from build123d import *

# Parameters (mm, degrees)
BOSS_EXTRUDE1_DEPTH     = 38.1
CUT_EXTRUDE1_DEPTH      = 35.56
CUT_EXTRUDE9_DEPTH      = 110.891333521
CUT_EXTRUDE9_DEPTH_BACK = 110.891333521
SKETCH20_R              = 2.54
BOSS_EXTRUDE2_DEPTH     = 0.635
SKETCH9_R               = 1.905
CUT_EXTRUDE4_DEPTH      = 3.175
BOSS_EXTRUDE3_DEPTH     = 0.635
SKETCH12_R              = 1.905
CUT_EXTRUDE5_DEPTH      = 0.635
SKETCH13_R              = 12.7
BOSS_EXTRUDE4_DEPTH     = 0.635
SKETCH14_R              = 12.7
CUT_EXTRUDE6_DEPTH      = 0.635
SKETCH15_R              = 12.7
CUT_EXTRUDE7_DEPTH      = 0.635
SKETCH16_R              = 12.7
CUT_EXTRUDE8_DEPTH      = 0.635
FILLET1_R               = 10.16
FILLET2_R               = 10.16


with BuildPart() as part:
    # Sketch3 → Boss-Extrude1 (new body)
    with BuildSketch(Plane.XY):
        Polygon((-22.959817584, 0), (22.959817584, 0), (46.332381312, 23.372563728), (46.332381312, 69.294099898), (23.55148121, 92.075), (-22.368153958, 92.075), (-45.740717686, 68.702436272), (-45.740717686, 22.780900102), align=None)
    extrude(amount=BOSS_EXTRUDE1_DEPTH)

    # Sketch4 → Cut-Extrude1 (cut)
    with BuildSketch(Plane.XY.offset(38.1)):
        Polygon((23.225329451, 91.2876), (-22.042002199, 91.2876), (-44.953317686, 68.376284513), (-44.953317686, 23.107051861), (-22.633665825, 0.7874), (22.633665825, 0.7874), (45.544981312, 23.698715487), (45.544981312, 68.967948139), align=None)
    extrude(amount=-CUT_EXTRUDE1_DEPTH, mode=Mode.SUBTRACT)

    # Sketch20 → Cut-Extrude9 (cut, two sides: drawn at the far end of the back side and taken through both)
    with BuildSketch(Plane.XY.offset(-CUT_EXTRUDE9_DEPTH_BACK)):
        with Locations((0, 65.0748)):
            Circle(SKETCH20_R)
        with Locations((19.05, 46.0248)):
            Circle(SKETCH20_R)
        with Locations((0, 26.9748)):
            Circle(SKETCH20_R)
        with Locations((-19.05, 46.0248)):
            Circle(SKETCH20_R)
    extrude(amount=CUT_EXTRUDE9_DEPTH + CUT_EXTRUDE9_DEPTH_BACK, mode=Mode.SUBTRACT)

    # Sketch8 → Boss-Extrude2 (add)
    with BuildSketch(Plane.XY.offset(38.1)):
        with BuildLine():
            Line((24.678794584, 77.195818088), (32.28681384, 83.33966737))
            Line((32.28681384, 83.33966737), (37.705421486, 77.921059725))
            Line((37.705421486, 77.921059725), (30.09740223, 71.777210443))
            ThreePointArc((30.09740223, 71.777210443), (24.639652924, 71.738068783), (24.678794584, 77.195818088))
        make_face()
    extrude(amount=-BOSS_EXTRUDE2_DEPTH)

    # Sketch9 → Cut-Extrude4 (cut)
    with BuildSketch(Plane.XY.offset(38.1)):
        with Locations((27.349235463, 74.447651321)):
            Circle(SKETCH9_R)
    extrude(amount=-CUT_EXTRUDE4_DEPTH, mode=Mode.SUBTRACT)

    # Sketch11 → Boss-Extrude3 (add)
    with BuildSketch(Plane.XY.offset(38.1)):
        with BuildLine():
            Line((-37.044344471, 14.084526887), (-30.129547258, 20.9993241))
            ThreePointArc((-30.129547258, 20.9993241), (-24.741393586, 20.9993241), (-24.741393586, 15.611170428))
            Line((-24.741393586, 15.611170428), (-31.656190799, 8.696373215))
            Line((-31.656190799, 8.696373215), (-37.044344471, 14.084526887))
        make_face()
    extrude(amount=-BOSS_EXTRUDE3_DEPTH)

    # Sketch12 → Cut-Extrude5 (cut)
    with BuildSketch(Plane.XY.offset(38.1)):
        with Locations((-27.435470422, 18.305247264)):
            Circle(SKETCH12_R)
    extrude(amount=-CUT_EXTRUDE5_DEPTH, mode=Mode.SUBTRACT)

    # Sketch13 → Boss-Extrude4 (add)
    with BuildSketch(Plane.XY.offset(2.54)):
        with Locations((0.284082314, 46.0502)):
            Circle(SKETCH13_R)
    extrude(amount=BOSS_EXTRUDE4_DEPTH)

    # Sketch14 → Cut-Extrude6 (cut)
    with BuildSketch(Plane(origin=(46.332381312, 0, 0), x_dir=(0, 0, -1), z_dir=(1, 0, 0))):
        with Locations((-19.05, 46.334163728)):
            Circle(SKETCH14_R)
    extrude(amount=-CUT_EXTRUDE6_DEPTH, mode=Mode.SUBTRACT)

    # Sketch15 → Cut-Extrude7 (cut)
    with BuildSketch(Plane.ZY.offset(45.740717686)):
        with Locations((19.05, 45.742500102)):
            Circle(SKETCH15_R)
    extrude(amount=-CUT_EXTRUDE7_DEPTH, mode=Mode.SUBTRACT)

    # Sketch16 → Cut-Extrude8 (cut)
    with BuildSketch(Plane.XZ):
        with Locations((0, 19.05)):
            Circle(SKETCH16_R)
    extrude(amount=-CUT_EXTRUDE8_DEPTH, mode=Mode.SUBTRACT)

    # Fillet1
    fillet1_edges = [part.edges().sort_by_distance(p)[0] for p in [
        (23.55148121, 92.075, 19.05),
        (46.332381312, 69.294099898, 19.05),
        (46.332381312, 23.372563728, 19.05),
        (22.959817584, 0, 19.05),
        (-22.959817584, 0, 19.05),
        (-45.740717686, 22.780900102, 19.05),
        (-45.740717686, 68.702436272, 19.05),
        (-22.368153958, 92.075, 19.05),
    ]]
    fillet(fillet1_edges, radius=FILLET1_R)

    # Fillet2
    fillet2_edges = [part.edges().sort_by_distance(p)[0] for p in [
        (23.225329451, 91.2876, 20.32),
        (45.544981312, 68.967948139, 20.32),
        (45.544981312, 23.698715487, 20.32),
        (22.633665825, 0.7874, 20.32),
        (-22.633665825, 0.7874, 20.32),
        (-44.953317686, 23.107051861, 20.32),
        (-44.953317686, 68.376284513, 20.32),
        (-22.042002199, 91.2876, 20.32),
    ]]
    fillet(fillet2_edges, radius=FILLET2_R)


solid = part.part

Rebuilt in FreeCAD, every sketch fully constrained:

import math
import FreeCAD as App
import Part
import Sketcher
Q = App.Units.Quantity


def edges_at(feature, points):
    """Names of the edges that pass closest to the given points."""
    edges = feature.Shape.Edges
    near = lambda p: min(range(len(edges)), key=lambda i: edges[i].distToShape(Part.Vertex(*p))[0])
    return sorted({f"Edge{near(p) + 1}" for p in points})

doc = App.newDocument("Part")
body = doc.addObject("PartDesign::Body", "Body")

sketch1 = body.newObject("Sketcher::SketchObject", "Sketch")
sketch1.AttachmentSupport = (doc.getObject("XY_Plane"), [""])
sketch1.MapMode = "FlatFace"
sketch1.addGeometry(Part.LineSegment(App.Vector(-22.959818, 0, 0), App.Vector(22.959818, 0, 0)), False)
sketch1.addGeometry(Part.LineSegment(App.Vector(22.959818, 0, 0), App.Vector(46.332381, 23.372564, 0)), False)
sketch1.addGeometry(Part.LineSegment(App.Vector(46.332381, 23.372564, 0), App.Vector(46.332381, 69.2941, 0)), False)
sketch1.addGeometry(Part.LineSegment(App.Vector(46.332381, 69.2941, 0), App.Vector(23.551481, 92.075, 0)), False)
sketch1.addGeometry(Part.LineSegment(App.Vector(23.551481, 92.075, 0), App.Vector(-22.368154, 92.075, 0)), False)
sketch1.addGeometry(Part.LineSegment(App.Vector(-22.368154, 92.075, 0), App.Vector(-45.740718, 68.702436, 0)), False)
sketch1.addGeometry(Part.LineSegment(App.Vector(-45.740718, 68.702436, 0), App.Vector(-45.740718, 22.7809, 0)), False)
sketch1.addGeometry(Part.LineSegment(App.Vector(-45.740718, 22.7809, 0), App.Vector(-22.959818, 0, 0)), False)
sketch1.addConstraint(Sketcher.Constraint("Coincident", 0, 2, 1, 1))
sketch1.addConstraint(Sketcher.Constraint("Coincident", 1, 2, 2, 1))
sketch1.addConstraint(Sketcher.Constraint("Coincident", 2, 2, 3, 1))
sketch1.addConstraint(Sketcher.Constraint("Coincident", 3, 2, 4, 1))
sketch1.addConstraint(Sketcher.Constraint("Coincident", 4, 2, 5, 1))
sketch1.addConstraint(Sketcher.Constraint("Coincident", 5, 2, 6, 1))
sketch1.addConstraint(Sketcher.Constraint("Coincident", 6, 2, 7, 1))
sketch1.addConstraint(Sketcher.Constraint("Coincident", 7, 2, 0, 1))
sketch1.addConstraint(Sketcher.Constraint("Horizontal", 0))
sketch1.addConstraint(Sketcher.Constraint("Vertical", 2))
sketch1.addConstraint(Sketcher.Constraint("Horizontal", 4))
sketch1.addConstraint(Sketcher.Constraint("Vertical", 6))
sketch1.addConstraint(Sketcher.Constraint("Symmetric", 0, 2, 7, 2, -1, 1))
sketch1.addConstraint(Sketcher.Constraint("Perpendicular", 1, 3))
sketch1.addConstraint(Sketcher.Constraint("Perpendicular", 3, 5))
sketch1.addConstraint(Sketcher.Constraint("Perpendicular", 5, 7))
sketch1.addConstraint(Sketcher.Constraint("Equal", 0, 4))
sketch1.addConstraint(Sketcher.Constraint("Equal", 2, 6))
sketch1.addConstraint(Sketcher.Constraint("Angle", 1, Q("45 deg")))
sketch1.addConstraint(Sketcher.Constraint("DistanceY", -1, 1, 3, 2, Q("3.625 in")))
sketch1.addConstraint(Sketcher.Constraint("DistanceY", -1, 1, 2, 2, 69.2941))
sketch1.addConstraint(Sketcher.Constraint("DistanceX", 5, 2, 3, 2, 69.292199))
sketch1.addConstraint(Sketcher.Constraint("DistanceX", 0, 1, 0, 2, 45.919635))
pad1 = body.newObject("PartDesign::Pad", "Pad")
pad1.Profile = sketch1
pad1.Length = Q("1.5 in")

sketch2 = body.newObject("Sketcher::SketchObject", "Sketch001")
sketch2.AttachmentSupport = (doc.getObject("XY_Plane"), [""])
sketch2.MapMode = "FlatFace"
sketch2.AttachmentOffset = App.Placement(App.Vector(0, 0, 1.5 * 25.4), App.Rotation())
sketch2.addGeometry(Part.LineSegment(App.Vector(23.225329, 91.2876, 0), App.Vector(-22.042002, 91.2876, 0)), False)
sketch2.addGeometry(Part.LineSegment(App.Vector(-22.042002, 91.2876, 0), App.Vector(-44.953318, 68.376285, 0)), False)
sketch2.addGeometry(Part.LineSegment(App.Vector(-44.953318, 68.376285, 0), App.Vector(-44.953318, 23.107052, 0)), False)
sketch2.addGeometry(Part.LineSegment(App.Vector(-44.953318, 23.107052, 0), App.Vector(-22.633666, 0.7874, 0)), False)
sketch2.addGeometry(Part.LineSegment(App.Vector(-22.633666, 0.7874, 0), App.Vector(22.633666, 0.7874, 0)), False)
sketch2.addGeometry(Part.LineSegment(App.Vector(22.633666, 0.7874, 0), App.Vector(45.544981, 23.698715, 0)), False)
sketch2.addGeometry(Part.LineSegment(App.Vector(45.544981, 23.698715, 0), App.Vector(45.544981, 68.967948, 0)), False)
sketch2.addGeometry(Part.LineSegment(App.Vector(45.544981, 68.967948, 0), App.Vector(23.225329, 91.2876, 0)), False)
sketch2.addConstraint(Sketcher.Constraint("Coincident", 0, 2, 1, 1))
sketch2.addConstraint(Sketcher.Constraint("Coincident", 1, 2, 2, 1))
sketch2.addConstraint(Sketcher.Constraint("Coincident", 2, 2, 3, 1))
sketch2.addConstraint(Sketcher.Constraint("Coincident", 3, 2, 4, 1))
sketch2.addConstraint(Sketcher.Constraint("Coincident", 4, 2, 5, 1))
sketch2.addConstraint(Sketcher.Constraint("Coincident", 5, 2, 6, 1))
sketch2.addConstraint(Sketcher.Constraint("Coincident", 6, 2, 7, 1))
sketch2.addConstraint(Sketcher.Constraint("Coincident", 7, 2, 0, 1))
sketch2.addConstraint(Sketcher.Constraint("Horizontal", 0))
sketch2.addConstraint(Sketcher.Constraint("Vertical", 2))
sketch2.addConstraint(Sketcher.Constraint("Horizontal", 4))
sketch2.addConstraint(Sketcher.Constraint("Vertical", 6))
sketch2.addConstraint(Sketcher.Constraint("Perpendicular", 1, 3))
sketch2.addConstraint(Sketcher.Constraint("Perpendicular", 3, 5))
sketch2.addConstraint(Sketcher.Constraint("Perpendicular", 5, 7))
sketch2.addConstraint(Sketcher.Constraint("Equal", 0, 4))
sketch2.addConstraint(Sketcher.Constraint("Equal", 2, 6))
sketch2.addConstraint(Sketcher.Constraint("Angle", 1, Q("-135 deg")))
sketch2.addConstraint(Sketcher.Constraint("DistanceY", -1, 1, 0, 2, Q("3.594 in")))
sketch2.addConstraint(Sketcher.Constraint("DistanceY", -1, 1, 3, 2, Q("0.031 in")))
sketch2.addConstraint(Sketcher.Constraint("DistanceX", 0, 2, 0, 1, 45.267332))
sketch2.addConstraint(Sketcher.Constraint("DistanceX", 2, 2, 5, 2, 90.498299))
sketch2.addConstraint(Sketcher.Constraint("DistanceY", -1, 1, 2, 2, 23.107052))
sketch2.addConstraint(Sketcher.Constraint("DistanceX", -1, 1, 5, 2, 45.544981))
pocket1 = body.newObject("PartDesign::Pocket", "Pocket")
pocket1.Profile = sketch2
pocket1.Length = Q("1.4 in")

sketch3 = body.newObject("Sketcher::SketchObject", "Sketch002")
sketch3.AttachmentSupport = (doc.getObject("XY_Plane"), [""])
sketch3.MapMode = "FlatFace"
sketch3.addGeometry(Part.Circle(App.Vector(0, 65.0748, 0), App.Vector(0, 0, 1), 2.54), False)
sketch3.addGeometry(Part.Circle(App.Vector(19.05, 46.0248, 0), App.Vector(0, 0, 1), 2.54), False)
sketch3.addGeometry(Part.Circle(App.Vector(0, 26.9748, 0), App.Vector(0, 0, 1), 2.54), False)
sketch3.addGeometry(Part.Circle(App.Vector(-19.05, 46.0248, 0), App.Vector(0, 0, 1), 2.54), False)
sketch3.addConstraint(Sketcher.Constraint("Equal", 0, 1))
sketch3.addConstraint(Sketcher.Constraint("Equal", 1, 2))
sketch3.addConstraint(Sketcher.Constraint("Equal", 2, 3))
sketch3.addConstraint(Sketcher.Constraint("Symmetric", 1, 3, 3, 3, -2))
sketch3.addConstraint(Sketcher.Constraint("PointOnObject", 0, 3, -2))
sketch3.addConstraint(Sketcher.Constraint("PointOnObject", 2, 3, -2))
sketch3.addConstraint(Sketcher.Constraint("Diameter", 0, Q("0.2 in")))
sketch3.addConstraint(Sketcher.Constraint("DistanceY", 2, 3, 0, 3, Q("1.5 in")))
sketch3.addConstraint(Sketcher.Constraint("DistanceX", 3, 3, 1, 3, Q("1.5 in")))
sketch3.addConstraint(Sketcher.Constraint("DistanceY", 1, 3, 0, 3, Q("0.75 in")))
sketch3.addConstraint(Sketcher.Constraint("DistanceY", -1, 1, 0, 3, Q("2.562 in")))
pocket2 = body.newObject("PartDesign::Pocket", "Pocket001")
pocket2.Profile = sketch3
pocket2.Type = "ThroughAll"
pocket2.Midplane = True

sketch4 = body.newObject("Sketcher::SketchObject", "Sketch003")
sketch4.AttachmentSupport = (doc.getObject("XY_Plane"), [""])
sketch4.MapMode = "FlatFace"
sketch4.AttachmentOffset = App.Placement(App.Vector(0, 0, 1.5 * 25.4), App.Rotation())
sketch4.addGeometry(Part.LineSegment(App.Vector(32.286814, 83.339667, 0), App.Vector(24.678795, 77.195818, 0)), False)
sketch4.addGeometry(Part.ArcOfCircle(Part.Circle(App.Vector(27.349235, 74.447651, 0), App.Vector(0, 0, 1), 3.831928), math.radians(134.178191), math.radians(315.821809)), False)
sketch4.addGeometry(Part.LineSegment(App.Vector(30.097402, 71.77721, 0), App.Vector(37.705421, 77.92106, 0)), False)
sketch4.addGeometry(Part.LineSegment(App.Vector(37.705421, 77.92106, 0), App.Vector(32.286814, 83.339667, 0)), False)
sketch4.addConstraint(Sketcher.Constraint("Coincident", 0, 2, 1, 1))
sketch4.addConstraint(Sketcher.Constraint("Coincident", 1, 2, 2, 1))
sketch4.addConstraint(Sketcher.Constraint("Coincident", 2, 2, 3, 1))
sketch4.addConstraint(Sketcher.Constraint("Coincident", 3, 2, 0, 1))
sketch4.addConstraint(Sketcher.Constraint("Parallel", 0, 2))
sketch4.addConstraint(Sketcher.Constraint("Equal", 0, 2))
sketch4.addConstraint(Sketcher.Constraint("Angle", 3, Q("135 deg")))
sketch4.addConstraint(Sketcher.Constraint("Distance", 0, Q("0.385 in")))
sketch4.addConstraint(Sketcher.Constraint("Radius", 1, 3.831928))
sketch4.addConstraint(Sketcher.Constraint("Distance", 3, 7.663068))
sketch4.addConstraint(Sketcher.Constraint("DistanceY", -1, 1, 1, 3, 74.447651))
sketch4.addConstraint(Sketcher.Constraint("DistanceX", -1, 1, 2, 2, 37.705421))
sketch4.addConstraint(Sketcher.Constraint("DistanceY", -1, 1, 2, 2, 77.92106))
pad2 = body.newObject("PartDesign::Pad", "Pad001")
pad2.Profile = sketch4
pad2.Length = Q("0.025 in")
pad2.Reversed = True

sketch5 = body.newObject("Sketcher::SketchObject", "Sketch004")
sketch5.AttachmentSupport = (doc.getObject("XY_Plane"), [""])
sketch5.MapMode = "FlatFace"
sketch5.AttachmentOffset = App.Placement(App.Vector(0, 0, 1.5 * 25.4), App.Rotation())
sketch5.addGeometry(Part.Circle(App.Vector(27.349235, 74.447651, 0), App.Vector(0, 0, 1), 1.905), False)
sketch5.addConstraint(Sketcher.Constraint("Diameter", 0, Q("0.15 in")))
sketch5.addConstraint(Sketcher.Constraint("DistanceY", -1, 1, 0, 3, 74.447651))
sketch5.addConstraint(Sketcher.Constraint("DistanceX", -1, 1, 0, 3, 27.349235))
pocket3 = body.newObject("PartDesign::Pocket", "Pocket002")
pocket3.Profile = sketch5
pocket3.Length = Q("0.125 in")

sketch6 = body.newObject("Sketcher::SketchObject", "Sketch005")
sketch6.AttachmentSupport = (doc.getObject("XY_Plane"), [""])
sketch6.MapMode = "FlatFace"
sketch6.AttachmentOffset = App.Placement(App.Vector(0, 0, 1.5 * 25.4), App.Rotation())
sketch6.addGeometry(Part.LineSegment(App.Vector(-30.129547, 20.999324, 0), App.Vector(-37.044344, 14.084527, 0)), False)
sketch6.addGeometry(Part.LineSegment(App.Vector(-37.044344, 14.084527, 0), App.Vector(-31.656191, 8.696373, 0)), False)
sketch6.addGeometry(Part.LineSegment(App.Vector(-31.656191, 8.696373, 0), App.Vector(-24.741394, 15.61117, 0)), False)
sketch6.addGeometry(Part.ArcOfCircle(Part.Circle(App.Vector(-27.43547, 18.305247, 0), App.Vector(0, 0, 1), 3.81), math.radians(-45), math.radians(135)), False)
sketch6.addConstraint(Sketcher.Constraint("Coincident", 0, 2, 1, 1))
sketch6.addConstraint(Sketcher.Constraint("Coincident", 1, 2, 2, 1))
sketch6.addConstraint(Sketcher.Constraint("Tangent", 2, 2, 3, 1))
sketch6.addConstraint(Sketcher.Constraint("Tangent", 3, 2, 0, 1))
sketch6.addConstraint(Sketcher.Constraint("Perpendicular", 0, 1))
sketch6.addConstraint(Sketcher.Constraint("Perpendicular", 1, 2))
sketch6.addConstraint(Sketcher.Constraint("Radius", 3, Q("0.15 in")))
sketch6.addConstraint(Sketcher.Constraint("Angle", 0, Q("-135 deg")))
sketch6.addConstraint(Sketcher.Constraint("Distance", 0, Q("0.385 in")))
sketch6.addConstraint(Sketcher.Constraint("DistanceX", 3, 3, -1, 1, 27.43547))
sketch6.addConstraint(Sketcher.Constraint("DistanceY", -1, 1, 2, 2, 15.61117))
pad3 = body.newObject("PartDesign::Pad", "Pad002")
pad3.Profile = sketch6
pad3.Length = Q("0.025 in")
pad3.Reversed = True

sketch7 = body.newObject("Sketcher::SketchObject", "Sketch006")
sketch7.AttachmentSupport = (doc.getObject("XY_Plane"), [""])
sketch7.MapMode = "FlatFace"
sketch7.AttachmentOffset = App.Placement(App.Vector(0, 0, 1.5 * 25.4), App.Rotation())
sketch7.addGeometry(Part.Circle(App.Vector(-27.43547, 18.305247, 0), App.Vector(0, 0, 1), 1.905), False)
sketch7.addConstraint(Sketcher.Constraint("Diameter", 0, Q("0.15 in")))
sketch7.addConstraint(Sketcher.Constraint("DistanceX", 0, 3, -1, 1, 27.43547))
sketch7.addConstraint(Sketcher.Constraint("DistanceY", -1, 1, 0, 3, 18.305247))
pocket4 = body.newObject("PartDesign::Pocket", "Pocket003")
pocket4.Profile = sketch7
pocket4.Length = Q("0.025 in")

sketch8 = body.newObject("Sketcher::SketchObject", "Sketch007")
sketch8.AttachmentSupport = (doc.getObject("XY_Plane"), [""])
sketch8.MapMode = "FlatFace"
sketch8.AttachmentOffset = App.Placement(App.Vector(0, 0, 0.1 * 25.4), App.Rotation())
sketch8.addGeometry(Part.Circle(App.Vector(0.284082, 46.0502, 0), App.Vector(0, 0, 1), 12.7), False)
sketch8.addConstraint(Sketcher.Constraint("Diameter", 0, Q("1 in")))
sketch8.addConstraint(Sketcher.Constraint("DistanceY", -1, 1, 0, 3, Q("1.813 in")))
sketch8.addConstraint(Sketcher.Constraint("DistanceX", -1, 1, 0, 3, 0.284082))
pad4 = body.newObject("PartDesign::Pad", "Pad003")
pad4.Profile = sketch8
pad4.Length = Q("0.025 in")

sketch9 = body.newObject("Sketcher::SketchObject", "Sketch008")
sketch9.AttachmentSupport = (doc.getObject("YZ_Plane"), [""])
sketch9.MapMode = "FlatFace"
sketch9.AttachmentOffset = App.Placement(App.Vector(0, 0, 46.332381), App.Rotation())
sketch9.addGeometry(Part.Circle(App.Vector(46.334164, 19.05, 0), App.Vector(0, 0, 1), 12.7), False)
sketch9.addConstraint(Sketcher.Constraint("Diameter", 0, Q("1 in")))
sketch9.addConstraint(Sketcher.Constraint("DistanceY", -1, 1, 0, 3, Q("0.75 in")))
sketch9.addConstraint(Sketcher.Constraint("DistanceX", -1, 1, 0, 3, 46.334164))
pocket5 = body.newObject("PartDesign::Pocket", "Pocket004")
pocket5.Profile = sketch9
pocket5.Length = Q("0.025 in")

sketch10 = body.newObject("Sketcher::SketchObject", "Sketch009")
sketch10.AttachmentSupport = (doc.getObject("YZ_Plane"), [""])
sketch10.MapMode = "FlatFace"
sketch10.AttachmentOffset = App.Placement(App.Vector(0, 0, -45.740718), App.Rotation())
sketch10.addGeometry(Part.Circle(App.Vector(45.7425, 19.05, 0), App.Vector(0, 0, 1), 12.7), False)
sketch10.addConstraint(Sketcher.Constraint("Diameter", 0, Q("1 in")))
sketch10.addConstraint(Sketcher.Constraint("DistanceY", -1, 1, 0, 3, Q("0.75 in")))
sketch10.addConstraint(Sketcher.Constraint("DistanceX", -1, 1, 0, 3, 45.7425))
pocket6 = body.newObject("PartDesign::Pocket", "Pocket005")
pocket6.Profile = sketch10
pocket6.Length = Q("0.025 in")
pocket6.Reversed = True

sketch11 = body.newObject("Sketcher::SketchObject", "Sketch010")
sketch11.AttachmentSupport = (doc.getObject("XZ_Plane"), [""])
sketch11.MapMode = "FlatFace"
sketch11.addGeometry(Part.Circle(App.Vector(0, 19.05, 0), App.Vector(0, 0, 1), 12.7), False)
sketch11.addConstraint(Sketcher.Constraint("PointOnObject", 0, 3, -2))
sketch11.addConstraint(Sketcher.Constraint("Diameter", 0, Q("1 in")))
sketch11.addConstraint(Sketcher.Constraint("DistanceY", -1, 1, 0, 3, Q("0.75 in")))
pocket7 = body.newObject("PartDesign::Pocket", "Pocket006")
pocket7.Profile = sketch11
pocket7.Length = Q("0.025 in")
doc.recompute()

fillet = body.newObject("PartDesign::Fillet", "Fillet")
fillet.Base = (pocket7, edges_at(pocket7, [
    (23.551, 92.075, 19.05),
    (46.332, 69.294, 19.05),
    (46.332, 23.373, 19.05),
    (22.96, 0, 19.05),
    (-22.96, 0, 19.05),
    (-45.741, 22.781, 19.05),
    (-45.741, 68.702, 19.05),
    (-22.368, 92.075, 19.05),
]))
fillet.Radius = Q("0.4 in")
doc.recompute()

fillet2 = body.newObject("PartDesign::Fillet", "Fillet001")
fillet2.Base = (fillet, edges_at(fillet, [
    (23.225, 91.288, 20.32),
    (45.545, 68.968, 20.32),
    (45.545, 23.699, 20.32),
    (22.634, 0.787, 20.32),
    (-22.634, 0.787, 20.32),
    (-44.953, 23.107, 20.32),
    (-44.953, 68.376, 20.32),
    (-22.042, 91.288, 20.32),
]))
fillet2.Radius = Q("0.4 in")

doc.recompute()
